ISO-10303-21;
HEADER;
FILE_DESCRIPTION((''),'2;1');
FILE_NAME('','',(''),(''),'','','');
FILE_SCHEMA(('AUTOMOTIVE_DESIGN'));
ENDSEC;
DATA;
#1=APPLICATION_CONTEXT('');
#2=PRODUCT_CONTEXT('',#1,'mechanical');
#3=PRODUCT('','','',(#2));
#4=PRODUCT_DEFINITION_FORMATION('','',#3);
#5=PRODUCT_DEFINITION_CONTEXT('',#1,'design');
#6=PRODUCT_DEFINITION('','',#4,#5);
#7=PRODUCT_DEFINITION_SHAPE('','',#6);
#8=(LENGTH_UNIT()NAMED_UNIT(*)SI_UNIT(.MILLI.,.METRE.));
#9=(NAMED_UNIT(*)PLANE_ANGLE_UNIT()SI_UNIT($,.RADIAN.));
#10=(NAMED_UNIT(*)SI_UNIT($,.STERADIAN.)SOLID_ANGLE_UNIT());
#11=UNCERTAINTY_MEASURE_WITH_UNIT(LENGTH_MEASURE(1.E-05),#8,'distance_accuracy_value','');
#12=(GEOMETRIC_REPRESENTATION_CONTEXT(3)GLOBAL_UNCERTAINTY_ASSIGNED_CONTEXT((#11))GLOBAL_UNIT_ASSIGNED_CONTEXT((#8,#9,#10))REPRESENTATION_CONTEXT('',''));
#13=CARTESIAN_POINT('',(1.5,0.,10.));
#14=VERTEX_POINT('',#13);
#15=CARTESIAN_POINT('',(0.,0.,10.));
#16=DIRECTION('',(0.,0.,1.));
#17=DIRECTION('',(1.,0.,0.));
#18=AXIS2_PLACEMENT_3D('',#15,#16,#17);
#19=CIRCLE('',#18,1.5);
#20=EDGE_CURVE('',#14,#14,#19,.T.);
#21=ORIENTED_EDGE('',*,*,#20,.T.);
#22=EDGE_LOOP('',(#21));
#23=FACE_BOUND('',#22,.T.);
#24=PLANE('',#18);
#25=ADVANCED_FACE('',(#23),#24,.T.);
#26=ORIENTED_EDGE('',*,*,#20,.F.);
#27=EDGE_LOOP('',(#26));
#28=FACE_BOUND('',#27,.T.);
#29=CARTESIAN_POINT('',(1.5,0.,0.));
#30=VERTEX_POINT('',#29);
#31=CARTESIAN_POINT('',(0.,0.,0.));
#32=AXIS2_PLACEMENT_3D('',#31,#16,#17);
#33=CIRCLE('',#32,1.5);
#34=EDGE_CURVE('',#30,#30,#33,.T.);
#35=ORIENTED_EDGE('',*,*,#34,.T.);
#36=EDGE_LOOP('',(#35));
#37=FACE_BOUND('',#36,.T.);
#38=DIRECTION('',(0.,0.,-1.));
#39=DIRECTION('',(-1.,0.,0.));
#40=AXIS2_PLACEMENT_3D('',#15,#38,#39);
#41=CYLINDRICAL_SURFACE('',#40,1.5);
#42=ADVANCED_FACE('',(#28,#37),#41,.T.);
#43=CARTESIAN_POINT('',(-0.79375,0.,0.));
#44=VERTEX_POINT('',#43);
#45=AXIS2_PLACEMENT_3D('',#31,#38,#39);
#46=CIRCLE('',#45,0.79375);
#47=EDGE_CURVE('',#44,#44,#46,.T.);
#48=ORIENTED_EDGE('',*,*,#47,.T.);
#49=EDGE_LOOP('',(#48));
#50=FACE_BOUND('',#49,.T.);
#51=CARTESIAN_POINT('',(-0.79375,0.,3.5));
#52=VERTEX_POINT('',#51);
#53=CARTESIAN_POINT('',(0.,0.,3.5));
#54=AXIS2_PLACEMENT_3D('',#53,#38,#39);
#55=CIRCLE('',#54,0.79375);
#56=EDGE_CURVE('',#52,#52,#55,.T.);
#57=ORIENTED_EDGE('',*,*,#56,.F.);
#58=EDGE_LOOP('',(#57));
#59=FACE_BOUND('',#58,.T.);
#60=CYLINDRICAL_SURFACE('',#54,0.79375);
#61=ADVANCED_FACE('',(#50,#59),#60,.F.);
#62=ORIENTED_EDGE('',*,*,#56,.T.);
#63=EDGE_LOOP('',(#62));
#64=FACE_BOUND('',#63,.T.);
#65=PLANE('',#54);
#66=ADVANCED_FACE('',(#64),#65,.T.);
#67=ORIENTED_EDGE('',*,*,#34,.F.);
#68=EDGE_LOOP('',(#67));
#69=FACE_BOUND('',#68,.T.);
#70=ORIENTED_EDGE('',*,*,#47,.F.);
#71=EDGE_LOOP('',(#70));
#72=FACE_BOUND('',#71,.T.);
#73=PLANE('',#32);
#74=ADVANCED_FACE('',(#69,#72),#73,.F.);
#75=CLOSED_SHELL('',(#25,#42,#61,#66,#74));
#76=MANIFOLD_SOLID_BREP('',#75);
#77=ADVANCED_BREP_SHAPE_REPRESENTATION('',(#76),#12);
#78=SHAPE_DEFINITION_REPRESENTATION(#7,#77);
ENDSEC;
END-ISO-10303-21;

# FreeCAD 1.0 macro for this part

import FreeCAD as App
import Part
import Sketcher

doc = App.newDocument("Part")
body = doc.addObject("PartDesign::Body", "Body")

# Sketch on XY plane
sketch1 = body.newObject("Sketcher::SketchObject", "Sketch")
sketch1.AttachmentSupport = (doc.getObject("XY_Plane"), [""])
sketch1.MapMode = "FlatFace"
sketch1.addGeometry(Part.Circle(App.Vector(0, 0, 0), App.Vector(0, 0, 1), 1.5), False)
sketch1.addConstraint(Sketcher.Constraint("Coincident", 0, 3, -1, 1))
sketch1.addConstraint(Sketcher.Constraint("Diameter", 0, 3.0))
pad1 = body.newObject("PartDesign::Pad", "Pad")
pad1.Profile = sketch1
pad1.Length = 10

# Sketch on XY plane
sketch2 = body.newObject("Sketcher::SketchObject", "Sketch001")
sketch2.AttachmentSupport = (doc.getObject("XY_Plane"), [""])
sketch2.MapMode = "FlatFace"
sketch2.addGeometry(Part.Circle(App.Vector(0, 0, 0), App.Vector(0, 0, 1), 0.8), False)
sketch2.addConstraint(Sketcher.Constraint("Coincident", 0, 3, -1, 1))
sketch2.addConstraint(Sketcher.Constraint("Diameter", 0, 1.5875))
pocket1 = body.newObject("PartDesign::Pocket", "Pocket")
pocket1.Profile = sketch2
pocket1.Length = 3.5
pocket1.Reversed = True

doc.recompute()
